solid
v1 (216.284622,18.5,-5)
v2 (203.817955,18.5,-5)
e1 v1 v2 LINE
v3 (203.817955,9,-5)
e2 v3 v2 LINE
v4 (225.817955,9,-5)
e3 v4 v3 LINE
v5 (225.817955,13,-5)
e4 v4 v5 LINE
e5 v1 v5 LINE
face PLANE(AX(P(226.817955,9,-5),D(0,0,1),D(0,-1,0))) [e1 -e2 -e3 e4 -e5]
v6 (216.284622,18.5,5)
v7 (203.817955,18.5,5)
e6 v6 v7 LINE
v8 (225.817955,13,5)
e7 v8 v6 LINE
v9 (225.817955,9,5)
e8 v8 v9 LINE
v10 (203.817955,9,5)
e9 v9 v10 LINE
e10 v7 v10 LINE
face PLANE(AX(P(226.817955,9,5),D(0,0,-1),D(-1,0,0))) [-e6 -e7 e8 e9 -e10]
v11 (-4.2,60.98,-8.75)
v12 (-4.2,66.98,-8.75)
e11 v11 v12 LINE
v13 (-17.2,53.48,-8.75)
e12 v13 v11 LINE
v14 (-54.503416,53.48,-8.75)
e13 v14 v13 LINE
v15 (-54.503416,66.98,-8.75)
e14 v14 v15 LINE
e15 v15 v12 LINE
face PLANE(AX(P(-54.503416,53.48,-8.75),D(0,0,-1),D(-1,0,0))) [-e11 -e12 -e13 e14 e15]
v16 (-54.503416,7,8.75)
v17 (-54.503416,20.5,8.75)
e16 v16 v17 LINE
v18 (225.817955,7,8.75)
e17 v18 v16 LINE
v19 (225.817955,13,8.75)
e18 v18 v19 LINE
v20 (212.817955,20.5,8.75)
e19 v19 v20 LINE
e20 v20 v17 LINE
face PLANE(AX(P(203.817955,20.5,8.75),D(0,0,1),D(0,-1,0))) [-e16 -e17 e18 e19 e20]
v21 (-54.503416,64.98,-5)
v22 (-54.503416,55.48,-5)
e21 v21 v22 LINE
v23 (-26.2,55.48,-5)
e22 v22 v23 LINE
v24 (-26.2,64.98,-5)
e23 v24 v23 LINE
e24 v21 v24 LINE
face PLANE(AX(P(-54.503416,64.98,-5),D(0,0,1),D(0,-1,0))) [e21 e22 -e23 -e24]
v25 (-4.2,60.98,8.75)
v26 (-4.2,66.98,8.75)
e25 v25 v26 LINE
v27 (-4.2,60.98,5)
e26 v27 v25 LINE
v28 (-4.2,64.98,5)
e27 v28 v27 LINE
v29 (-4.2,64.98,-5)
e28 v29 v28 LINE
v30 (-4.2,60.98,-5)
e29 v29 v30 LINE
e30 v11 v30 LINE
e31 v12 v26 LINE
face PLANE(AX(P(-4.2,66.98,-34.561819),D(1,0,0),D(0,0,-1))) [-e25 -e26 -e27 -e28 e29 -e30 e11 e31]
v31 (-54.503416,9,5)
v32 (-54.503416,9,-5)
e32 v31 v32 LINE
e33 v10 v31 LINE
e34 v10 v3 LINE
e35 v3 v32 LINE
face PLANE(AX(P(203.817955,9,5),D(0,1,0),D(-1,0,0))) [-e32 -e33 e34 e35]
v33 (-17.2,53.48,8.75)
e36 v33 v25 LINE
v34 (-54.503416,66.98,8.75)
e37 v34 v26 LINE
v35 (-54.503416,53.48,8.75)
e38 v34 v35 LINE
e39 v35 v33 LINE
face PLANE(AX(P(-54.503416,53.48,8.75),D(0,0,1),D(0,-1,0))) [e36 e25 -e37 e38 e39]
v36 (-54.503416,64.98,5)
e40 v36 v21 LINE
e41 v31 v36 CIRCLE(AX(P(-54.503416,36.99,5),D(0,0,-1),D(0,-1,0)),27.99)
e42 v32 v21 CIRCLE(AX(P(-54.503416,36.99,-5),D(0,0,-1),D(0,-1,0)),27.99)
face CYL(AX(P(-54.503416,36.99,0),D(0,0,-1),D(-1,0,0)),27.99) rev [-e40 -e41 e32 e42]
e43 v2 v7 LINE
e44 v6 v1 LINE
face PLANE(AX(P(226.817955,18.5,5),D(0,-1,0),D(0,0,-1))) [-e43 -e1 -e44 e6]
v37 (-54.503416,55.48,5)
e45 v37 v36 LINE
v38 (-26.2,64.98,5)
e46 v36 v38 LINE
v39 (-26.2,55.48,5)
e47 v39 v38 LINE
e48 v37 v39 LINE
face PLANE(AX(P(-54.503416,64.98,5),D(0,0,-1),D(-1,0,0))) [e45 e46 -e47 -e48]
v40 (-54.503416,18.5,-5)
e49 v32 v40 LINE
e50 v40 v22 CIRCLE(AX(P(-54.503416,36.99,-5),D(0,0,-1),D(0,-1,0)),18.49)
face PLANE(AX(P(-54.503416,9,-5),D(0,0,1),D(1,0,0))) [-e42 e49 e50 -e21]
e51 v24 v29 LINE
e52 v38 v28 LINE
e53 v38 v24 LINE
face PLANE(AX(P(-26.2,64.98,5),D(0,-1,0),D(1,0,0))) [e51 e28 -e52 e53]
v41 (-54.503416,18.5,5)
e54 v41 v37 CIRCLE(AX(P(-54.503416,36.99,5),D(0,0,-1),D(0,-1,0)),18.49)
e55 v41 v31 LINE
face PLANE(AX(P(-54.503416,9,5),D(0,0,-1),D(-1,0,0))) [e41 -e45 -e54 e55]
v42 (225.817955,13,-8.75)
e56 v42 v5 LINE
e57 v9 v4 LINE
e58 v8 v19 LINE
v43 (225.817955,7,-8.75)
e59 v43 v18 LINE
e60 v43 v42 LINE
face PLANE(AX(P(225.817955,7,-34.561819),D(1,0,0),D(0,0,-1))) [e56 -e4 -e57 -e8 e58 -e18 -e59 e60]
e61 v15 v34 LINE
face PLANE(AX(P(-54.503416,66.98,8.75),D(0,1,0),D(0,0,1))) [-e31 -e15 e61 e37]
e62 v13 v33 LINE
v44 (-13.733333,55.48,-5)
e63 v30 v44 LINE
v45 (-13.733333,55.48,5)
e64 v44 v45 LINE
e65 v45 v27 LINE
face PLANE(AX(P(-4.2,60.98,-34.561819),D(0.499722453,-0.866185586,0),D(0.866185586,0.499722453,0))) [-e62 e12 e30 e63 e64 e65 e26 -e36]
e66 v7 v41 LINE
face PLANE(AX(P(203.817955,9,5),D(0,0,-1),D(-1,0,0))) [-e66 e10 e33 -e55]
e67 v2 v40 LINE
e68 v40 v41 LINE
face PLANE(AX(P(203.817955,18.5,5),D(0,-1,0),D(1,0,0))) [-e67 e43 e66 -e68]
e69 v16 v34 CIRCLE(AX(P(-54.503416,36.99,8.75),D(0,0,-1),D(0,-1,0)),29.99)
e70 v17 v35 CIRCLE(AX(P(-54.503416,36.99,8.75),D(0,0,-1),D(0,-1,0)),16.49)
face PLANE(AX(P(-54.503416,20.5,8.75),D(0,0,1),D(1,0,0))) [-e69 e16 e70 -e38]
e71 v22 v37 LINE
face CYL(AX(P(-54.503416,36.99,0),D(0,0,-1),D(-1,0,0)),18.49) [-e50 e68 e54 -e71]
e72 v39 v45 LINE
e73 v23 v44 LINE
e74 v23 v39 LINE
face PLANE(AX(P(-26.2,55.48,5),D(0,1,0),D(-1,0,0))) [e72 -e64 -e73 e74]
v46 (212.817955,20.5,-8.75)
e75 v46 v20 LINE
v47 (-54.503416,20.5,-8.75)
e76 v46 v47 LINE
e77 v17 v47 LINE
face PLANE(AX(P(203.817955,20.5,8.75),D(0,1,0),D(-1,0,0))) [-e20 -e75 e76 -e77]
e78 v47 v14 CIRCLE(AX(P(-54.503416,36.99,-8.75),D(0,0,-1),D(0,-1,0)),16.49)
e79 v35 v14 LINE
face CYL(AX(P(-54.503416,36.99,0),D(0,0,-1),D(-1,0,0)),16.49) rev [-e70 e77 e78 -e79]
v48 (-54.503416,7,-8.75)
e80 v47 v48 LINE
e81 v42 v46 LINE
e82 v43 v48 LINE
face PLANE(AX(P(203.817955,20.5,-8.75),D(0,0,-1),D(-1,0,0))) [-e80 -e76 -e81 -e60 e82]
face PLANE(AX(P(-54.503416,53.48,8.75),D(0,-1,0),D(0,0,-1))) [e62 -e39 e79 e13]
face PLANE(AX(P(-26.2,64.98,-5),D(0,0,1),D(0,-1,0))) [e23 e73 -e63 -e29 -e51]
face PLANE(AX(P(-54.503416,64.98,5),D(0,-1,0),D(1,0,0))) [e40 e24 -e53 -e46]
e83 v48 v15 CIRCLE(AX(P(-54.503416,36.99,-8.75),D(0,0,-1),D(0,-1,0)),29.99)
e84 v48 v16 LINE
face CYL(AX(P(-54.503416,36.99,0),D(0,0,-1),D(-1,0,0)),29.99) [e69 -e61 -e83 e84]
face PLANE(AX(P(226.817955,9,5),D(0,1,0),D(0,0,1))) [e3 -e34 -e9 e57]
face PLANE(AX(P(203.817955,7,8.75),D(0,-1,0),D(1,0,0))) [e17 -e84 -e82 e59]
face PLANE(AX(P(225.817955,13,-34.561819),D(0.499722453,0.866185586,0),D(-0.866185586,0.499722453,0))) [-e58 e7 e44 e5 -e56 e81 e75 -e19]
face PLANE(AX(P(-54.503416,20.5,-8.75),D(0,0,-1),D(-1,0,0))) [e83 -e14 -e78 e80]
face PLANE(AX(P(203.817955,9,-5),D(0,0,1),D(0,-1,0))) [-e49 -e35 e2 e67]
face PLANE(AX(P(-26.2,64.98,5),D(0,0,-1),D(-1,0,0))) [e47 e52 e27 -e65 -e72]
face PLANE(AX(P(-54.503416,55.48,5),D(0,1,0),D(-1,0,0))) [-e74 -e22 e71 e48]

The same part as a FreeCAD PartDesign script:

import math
import FreeCAD as App
import Part
import Sketcher
from FreeCAD import Vector


def add_polygon(sketch, points):
    """Adds a closed chain of lines whose ends are joined by coincident constraints."""
    first, n = sketch.GeometryCount, len(points)
    for a, b in zip(points, points[1:] + points[:1]):
        sketch.addGeometry(Part.LineSegment(App.Vector(*a, 0), App.Vector(*b, 0)), False)
    for i in range(n):
        sketch.addConstraint(Sketcher.Constraint("Coincident", first + i, 2, first + (i + 1) % n, 1))

doc = App.newDocument("Part")
body = doc.addObject("PartDesign::Body", "Body")

sketch1 = doc.addObject("Sketcher::SketchObject", "Sketch")
body.addObject(sketch1)
sketch1.AttachmentSupport = (doc.YZ_Plane, [""])
sketch1.MapMode = "FlatFace"
sketch1.AttachmentOffset = App.Placement(Vector(0, 0, 203.817955), App.Rotation())
add_polygon(sketch1, [(20.5, -8.75), (7, -8.75), (7, 8.75), (20.5, 8.75)])
sketch1.addConstraint([
    Sketcher.Constraint("Horizontal", 0),
    Sketcher.Constraint("Vertical", 1),
    Sketcher.Constraint("Horizontal", 2),
    Sketcher.Constraint("Vertical", 3),
    Sketcher.Constraint("DistanceX", 0, 2, 0, 1, 13.5),
    Sketcher.Constraint("DistanceY", 1, 1, 1, 2, 17.5),
    Sketcher.Constraint("DistanceX", -1, 1, 0, 2, 7.0),
    Sketcher.Constraint("DistanceY", 0, 2, -1, 1, 8.75),
])

sketch2 = doc.addObject("Sketcher::SketchObject", "Sketch001")
body.addObject(sketch2)
sketch2.AttachmentSupport = (doc.XY_Plane, [""])
sketch2.MapMode = "FlatFace"
sketch2.addGeometry([
    Part.LineSegment(Vector(-26.2, 66.98, 0), Vector(-54.503416, 66.98, 0)),
    Part.ArcOfCircle(Part.Circle(Vector(-54.503416, 36.99, 0), Vector(0, 0, 1), 29.99), math.radians(90), math.radians(270)),
    Part.LineSegment(Vector(-54.503416, 7, 0), Vector(203.817955, 7, 0)),
], False)
sketch2.addConstraint([
    Sketcher.Constraint("Tangent", 0, 2, 1, 1),
    Sketcher.Constraint("Tangent", 1, 2, 2, 1),
    Sketcher.Constraint("Horizontal", 0),
    Sketcher.Constraint("Horizontal", 2),
    Sketcher.Constraint("Radius", 1, 29.99),
    Sketcher.Constraint("DistanceY", -1, 1, 1, 2, 7.0),
    Sketcher.Constraint("DistanceX", 0, 1, -1, 1, 26.2),
    Sketcher.Constraint("DistanceX", 2, 1, 2, 2, 258.321371),
    Sketcher.Constraint("DistanceX", 0, 2, 0, 1, 28.303416),
])
doc.recompute()

additivepipe = doc.addObject("PartDesign::AdditivePipe", "AdditivePipe")
body.addObject(additivepipe)
additivepipe.Profile = sketch1
additivepipe.Spine = (sketch2, ["Edge1", "Edge2", "Edge3"])

sketch3 = doc.addObject("Sketcher::SketchObject", "Sketch002")
body.addObject(sketch3)
sketch3.AttachmentSupport = (doc.XY_Plane, [""])
sketch3.MapMode = "FlatFace"
sketch3.AttachmentOffset = App.Placement(Vector(0, 0, 8.75), App.Rotation())
add_polygon(sketch3, [(-26.2, 66.98), (-26.2, 53.48), (-17.2, 53.48), (-4.2, 60.98), (-4.2, 66.98)])
add_polygon(sketch3, [(203.817955, 20.5), (203.817955, 7), (225.817955, 7), (225.817955, 13), (212.817955, 20.5)])
sketch3.addConstraint([
    Sketcher.Constraint("Vertical", 0),
    Sketcher.Constraint("Horizontal", 1),
    Sketcher.Constraint("Vertical", 3),
    Sketcher.Constraint("Horizontal", 4),
    Sketcher.Constraint("Vertical", 5),
    Sketcher.Constraint("Horizontal", 6),
    Sketcher.Constraint("Vertical", 7),
    Sketcher.Constraint("Horizontal", 9),
    Sketcher.Constraint("Equal", 4, 6),
    Sketcher.Constraint("Equal", 1, 9),
    Sketcher.Constraint("Equal", 0, 5),
    Sketcher.Constraint("Equal", 3, 7),
    Sketcher.Constraint("DistanceX", 1, 1, 1, 2, 9.0),
    Sketcher.Constraint("DistanceX", 4, 2, 4, 1, 22.0),
    Sketcher.Constraint("DistanceY", 3, 1, 3, 2, 6.0),
    Sketcher.Constraint("DistanceY", 0, 2, 0, 1, 13.5),
    Sketcher.Constraint("DistanceY", -1, 1, 5, 2, 7.0),
    Sketcher.Constraint("DistanceX", 0, 2, -1, 1, 26.2),
    Sketcher.Constraint("DistanceY", -1, 1, 0, 2, 53.48),
    Sketcher.Constraint("DistanceX", -1, 1, 5, 2, 203.817955),
])
pad1 = doc.addObject("PartDesign::Pad", "Pad")
body.addObject(pad1)
pad1.Profile = sketch3
pad1.Length = 17.5
pad1.Reversed = True

sketch4 = doc.addObject("Sketcher::SketchObject", "Sketch003")
body.addObject(sketch4)
sketch4.AttachmentSupport = (doc.YZ_Plane, [""])
sketch4.MapMode = "FlatFace"
sketch4.AttachmentOffset = App.Placement(Vector(0, 0, 225.817955), App.Rotation())
add_polygon(sketch4, [(18.5, 5), (9, 5), (9, -5), (18.5, -5)])
sketch4.addConstraint([
    Sketcher.Constraint("Horizontal", 0),
    Sketcher.Constraint("Vertical", 1),
    Sketcher.Constraint("Horizontal", 2),
    Sketcher.Constraint("Vertical", 3),
    Sketcher.Constraint("DistanceY", 1, 2, 1, 1, 10.0),
    Sketcher.Constraint("DistanceX", 0, 2, 0, 1, 9.5),
    Sketcher.Constraint("DistanceX", -1, 1, 0, 2, 9.0),
    Sketcher.Constraint("DistanceY", -1, 1, 0, 2, 5.0),
])

sketch5 = doc.addObject("Sketcher::SketchObject", "Sketch004")
body.addObject(sketch5)
sketch5.AttachmentSupport = (doc.XY_Plane, [""])
sketch5.MapMode = "FlatFace"
sketch5.addGeometry([
    Part.LineSegment(Vector(-4.2, 66.98, 0), Vector(-54.503416, 66.98, 0)),
    Part.ArcOfCircle(Part.Circle(Vector(-54.503416, 36.99, 0), Vector(0, 0, 1), 29.99), math.radians(90), math.radians(270)),
    Part.LineSegment(Vector(-54.503416, 7, 0), Vector(225.817955, 7, 0)),
], False)
sketch5.addConstraint([
    Sketcher.Constraint("Tangent", 0, 2, 1, 1),
    Sketcher.Constraint("Tangent", 1, 2, 2, 1),
    Sketcher.Constraint("Horizontal", 0),
    Sketcher.Constraint("Horizontal", 2),
    Sketcher.Constraint("Radius", 1, 29.99),
    Sketcher.Constraint("DistanceY", -1, 1, 1, 2, 7.0),
    Sketcher.Constraint("DistanceX", 0, 1, -1, 1, 4.2),
    Sketcher.Constraint("DistanceX", 2, 1, 2, 2, 280.321371),
    Sketcher.Constraint("DistanceX", 0, 2, 0, 1, 50.303416),
])
doc.recompute()

subtractivepipe = doc.addObject("PartDesign::SubtractivePipe", "SubtractivePipe")
body.addObject(subtractivepipe)
subtractivepipe.Profile = sketch4
subtractivepipe.Spine = (sketch5, ["Edge1", "Edge2", "Edge3"])

doc.recompute()
